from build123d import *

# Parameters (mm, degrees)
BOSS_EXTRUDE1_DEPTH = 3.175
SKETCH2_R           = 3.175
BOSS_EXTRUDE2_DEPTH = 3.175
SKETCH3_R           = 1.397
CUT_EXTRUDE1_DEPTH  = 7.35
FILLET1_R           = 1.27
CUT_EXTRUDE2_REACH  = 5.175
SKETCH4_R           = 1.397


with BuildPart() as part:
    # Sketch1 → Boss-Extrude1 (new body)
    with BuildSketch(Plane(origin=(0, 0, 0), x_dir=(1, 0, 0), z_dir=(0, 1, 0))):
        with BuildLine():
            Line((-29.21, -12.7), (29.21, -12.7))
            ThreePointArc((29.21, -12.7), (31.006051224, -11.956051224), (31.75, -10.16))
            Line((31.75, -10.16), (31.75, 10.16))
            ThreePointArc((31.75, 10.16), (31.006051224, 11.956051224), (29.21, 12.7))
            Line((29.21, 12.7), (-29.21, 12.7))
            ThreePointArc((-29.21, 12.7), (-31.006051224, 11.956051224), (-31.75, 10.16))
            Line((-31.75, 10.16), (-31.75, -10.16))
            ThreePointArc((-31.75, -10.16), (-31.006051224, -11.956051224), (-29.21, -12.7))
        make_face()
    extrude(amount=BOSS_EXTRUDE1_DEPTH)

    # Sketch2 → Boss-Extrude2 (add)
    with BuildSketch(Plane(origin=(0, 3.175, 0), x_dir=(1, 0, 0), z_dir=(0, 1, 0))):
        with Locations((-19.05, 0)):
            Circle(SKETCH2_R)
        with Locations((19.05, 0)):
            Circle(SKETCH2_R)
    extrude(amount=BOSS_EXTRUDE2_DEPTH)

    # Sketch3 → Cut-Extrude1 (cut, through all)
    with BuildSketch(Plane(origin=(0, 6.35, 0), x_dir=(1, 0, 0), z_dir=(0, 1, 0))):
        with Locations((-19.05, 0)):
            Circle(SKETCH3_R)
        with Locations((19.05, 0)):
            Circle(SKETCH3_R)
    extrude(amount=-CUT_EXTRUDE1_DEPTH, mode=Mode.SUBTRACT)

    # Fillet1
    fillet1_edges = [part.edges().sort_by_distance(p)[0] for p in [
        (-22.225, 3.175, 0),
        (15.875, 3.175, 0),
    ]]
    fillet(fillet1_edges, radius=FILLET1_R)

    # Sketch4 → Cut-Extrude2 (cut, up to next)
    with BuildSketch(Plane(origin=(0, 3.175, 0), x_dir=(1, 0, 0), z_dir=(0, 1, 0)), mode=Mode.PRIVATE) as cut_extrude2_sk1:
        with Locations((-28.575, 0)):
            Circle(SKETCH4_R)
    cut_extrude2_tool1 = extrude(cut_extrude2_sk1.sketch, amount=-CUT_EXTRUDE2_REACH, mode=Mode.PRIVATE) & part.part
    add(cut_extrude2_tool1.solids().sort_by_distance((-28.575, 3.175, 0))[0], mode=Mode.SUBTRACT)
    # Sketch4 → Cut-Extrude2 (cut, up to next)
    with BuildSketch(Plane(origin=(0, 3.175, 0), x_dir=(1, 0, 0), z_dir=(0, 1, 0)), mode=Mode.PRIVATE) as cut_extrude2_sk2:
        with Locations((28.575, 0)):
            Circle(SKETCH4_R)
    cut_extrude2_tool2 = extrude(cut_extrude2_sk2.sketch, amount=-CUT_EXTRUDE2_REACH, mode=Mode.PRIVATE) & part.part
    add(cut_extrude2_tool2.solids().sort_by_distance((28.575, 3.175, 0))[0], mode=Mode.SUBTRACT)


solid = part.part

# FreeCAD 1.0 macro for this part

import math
import FreeCAD as App
import Part
import Sketcher
from FreeCAD import Vector
Q = App.Units.Quantity


def edges_at(feature, points):
    """Names of the edges that pass closest to the given points."""
    edges = feature.Shape.Edges
    near = lambda p: min(range(len(edges)), key=lambda i: edges[i].distToShape(Part.Vertex(*p))[0])
    return sorted({f"Edge{near(p) + 1}" for p in points})

doc = App.newDocument("Part")
body = doc.addObject("PartDesign::Body", "Body")

sketch1 = body.newObject("Sketcher::SketchObject", "Sketch")
sketch1.AttachmentSupport = (doc.getObject("XZ_Plane"), [""])
sketch1.MapMode = "FlatFace"
sketch1.addGeometry([
    Part.LineSegment(Vector(-29.2, 12.7, 0), Vector(29.2, 12.7, 0)),
    Part.ArcOfCircle(Part.Circle(Vector(29.2, 10.2, 0), Vector(0, 0, 1), 2.5), math.radians(0), math.radians(90)),
    Part.LineSegment(Vector(31.8, 10.2, 0), Vector(31.8, -10.2, 0)),
    Part.ArcOfCircle(Part.Circle(Vector(29.2, -10.2, 0), Vector(0, 0, 1), 2.5), math.radians(-90), math.radians(0)),
    Part.LineSegment(Vector(29.2, -12.7, 0), Vector(-29.2, -12.7, 0)),
    Part.ArcOfCircle(Part.Circle(Vector(-29.2, -10.2, 0), Vector(0, 0, 1), 2.5), math.radians(-180), math.radians(-90)),
    Part.LineSegment(Vector(-31.8, -10.2, 0), Vector(-31.8, 10.2, 0)),
    Part.ArcOfCircle(Part.Circle(Vector(-29.2, 10.2, 0), Vector(0, 0, 1), 2.5), math.radians(90), math.radians(180)),
], False)
sketch1.addConstraint([
    Sketcher.Constraint("Tangent", 0, 2, 1, 2),
    Sketcher.Constraint("Tangent", 1, 1, 2, 1),
    Sketcher.Constraint("Tangent", 2, 2, 3, 2),
    Sketcher.Constraint("Tangent", 3, 1, 4, 1),
    Sketcher.Constraint("Tangent", 4, 2, 5, 2),
    Sketcher.Constraint("Tangent", 5, 1, 6, 1),
    Sketcher.Constraint("Tangent", 6, 2, 7, 2),
    Sketcher.Constraint("Tangent", 7, 1, 0, 1),
    Sketcher.Constraint("Horizontal", 0),
    Sketcher.Constraint("Vertical", 2),
    Sketcher.Constraint("Horizontal", 4),
    Sketcher.Constraint("Vertical", 6),
    Sketcher.Constraint("Equal", 1, 3),
    Sketcher.Constraint("Equal", 3, 5),
    Sketcher.Constraint("Equal", 5, 7),
    Sketcher.Constraint("Symmetric", 1, 3, 5, 3, -1, 1),
    Sketcher.Constraint("Radius", 1, Q("0.1 in")),
    Sketcher.Constraint("DistanceX", 0, 1, 0, 2, Q("2.3 in")),
    Sketcher.Constraint("DistanceY", 2, 2, 2, 1, Q("0.8 in")),
])
pad1 = body.newObject("PartDesign::Pad", "Pad")
pad1.Profile = sketch1
pad1.Length = Q("0.125 in")
pad1.Reversed = True

sketch2 = body.newObject("Sketcher::SketchObject", "Sketch001")
sketch2.AttachmentSupport = (doc.getObject("XZ_Plane"), [""])
sketch2.MapMode = "FlatFace"
sketch2.AttachmentOffset = App.Placement(Vector(0, 0, -0.125 * 25.4), App.Rotation())
sketch2.addGeometry([
    Part.Circle(Vector(-19.1, 0, 0), Vector(0, 0, 1), 3.2),
    Part.Circle(Vector(19.1, 0, 0), Vector(0, 0, 1), 3.2),
], False)
sketch2.addConstraint([
    Sketcher.Constraint("Equal", 0, 1),
    Sketcher.Constraint("Symmetric", 0, 3, 1, 3, -1, 1),
    Sketcher.Constraint("PointOnObject", 0, 3, -1),
    Sketcher.Constraint("Diameter", 0, Q("0.25 in")),
    Sketcher.Constraint("DistanceX", 0, 3, 1, 3, Q("1.5 in")),
])
pad2 = body.newObject("PartDesign::Pad", "Pad001")
pad2.Profile = sketch2
pad2.Length = Q("0.125 in")
pad2.Reversed = True

sketch3 = body.newObject("Sketcher::SketchObject", "Sketch002")
sketch3.AttachmentSupport = (doc.getObject("XZ_Plane"), [""])
sketch3.MapMode = "FlatFace"
sketch3.AttachmentOffset = App.Placement(Vector(0, 0, -0.25 * 25.4), App.Rotation())
sketch3.addGeometry([
    Part.Circle(Vector(-19.1, 0, 0), Vector(0, 0, 1), 1.4),
    Part.Circle(Vector(19.1, 0, 0), Vector(0, 0, 1), 1.4),
], False)
sketch3.addConstraint([
    Sketcher.Constraint("Equal", 0, 1),
    Sketcher.Constraint("Symmetric", 0, 3, 1, 3, -1, 1),
    Sketcher.Constraint("PointOnObject", 0, 3, -1),
    Sketcher.Constraint("Diameter", 0, Q("0.11 in")),
    Sketcher.Constraint("DistanceX", 0, 3, 1, 3, Q("1.5 in")),
])
pocket1 = body.newObject("PartDesign::Pocket", "Pocket")
pocket1.Profile = sketch3
pocket1.Type = "ThroughAll"
pocket1.Reversed = True
doc.recompute()

fillet = body.newObject("PartDesign::Fillet", "Fillet")
fillet.Base = (pocket1, edges_at(pocket1, [(-22.225, 3.175, 0), (15.875, 3.175, 0)]))
fillet.Radius = Q("0.05 in")

sketch4 = body.newObject("Sketcher::SketchObject", "Sketch003")
sketch4.AttachmentSupport = (doc.getObject("XZ_Plane"), [""])
sketch4.MapMode = "FlatFace"
sketch4.AttachmentOffset = App.Placement(Vector(0, 0, -0.125 * 25.4), App.Rotation())
sketch4.addGeometry(Part.Circle(Vector(-28.6, 0, 0), Vector(0, 0, 1), 1.4), False)
sketch4.addConstraint([
    Sketcher.Constraint("PointOnObject", 0, 3, -1),
    Sketcher.Constraint("Diameter", 0, Q("0.11 in")),
    Sketcher.Constraint("DistanceX", 0, 3, -1, 1, Q("1.125 in")),
])
pocket2 = body.newObject("PartDesign::Pocket", "Pocket001")
pocket2.Profile = sketch4
pocket2.Type = "UpToFirst"
pocket2.Reversed = True

sketch5 = body.newObject("Sketcher::SketchObject", "Sketch004")
sketch5.AttachmentSupport = (doc.getObject("XZ_Plane"), [""])
sketch5.MapMode = "FlatFace"
sketch5.AttachmentOffset = App.Placement(Vector(0, 0, -0.125 * 25.4), App.Rotation())
sketch5.addGeometry(Part.Circle(Vector(28.6, 0, 0), Vector(0, 0, 1), 1.4), False)
sketch5.addConstraint([
    Sketcher.Constraint("PointOnObject", 0, 3, -1),
    Sketcher.Constraint("Diameter", 0, Q("0.11 in")),
    Sketcher.Constraint("DistanceX", -1, 1, 0, 3, Q("1.125 in")),
])
pocket3 = body.newObject("PartDesign::Pocket", "Pocket002")
pocket3.Profile = sketch5
pocket3.Type = "UpToFirst"
pocket3.Reversed = True

doc.recompute()
